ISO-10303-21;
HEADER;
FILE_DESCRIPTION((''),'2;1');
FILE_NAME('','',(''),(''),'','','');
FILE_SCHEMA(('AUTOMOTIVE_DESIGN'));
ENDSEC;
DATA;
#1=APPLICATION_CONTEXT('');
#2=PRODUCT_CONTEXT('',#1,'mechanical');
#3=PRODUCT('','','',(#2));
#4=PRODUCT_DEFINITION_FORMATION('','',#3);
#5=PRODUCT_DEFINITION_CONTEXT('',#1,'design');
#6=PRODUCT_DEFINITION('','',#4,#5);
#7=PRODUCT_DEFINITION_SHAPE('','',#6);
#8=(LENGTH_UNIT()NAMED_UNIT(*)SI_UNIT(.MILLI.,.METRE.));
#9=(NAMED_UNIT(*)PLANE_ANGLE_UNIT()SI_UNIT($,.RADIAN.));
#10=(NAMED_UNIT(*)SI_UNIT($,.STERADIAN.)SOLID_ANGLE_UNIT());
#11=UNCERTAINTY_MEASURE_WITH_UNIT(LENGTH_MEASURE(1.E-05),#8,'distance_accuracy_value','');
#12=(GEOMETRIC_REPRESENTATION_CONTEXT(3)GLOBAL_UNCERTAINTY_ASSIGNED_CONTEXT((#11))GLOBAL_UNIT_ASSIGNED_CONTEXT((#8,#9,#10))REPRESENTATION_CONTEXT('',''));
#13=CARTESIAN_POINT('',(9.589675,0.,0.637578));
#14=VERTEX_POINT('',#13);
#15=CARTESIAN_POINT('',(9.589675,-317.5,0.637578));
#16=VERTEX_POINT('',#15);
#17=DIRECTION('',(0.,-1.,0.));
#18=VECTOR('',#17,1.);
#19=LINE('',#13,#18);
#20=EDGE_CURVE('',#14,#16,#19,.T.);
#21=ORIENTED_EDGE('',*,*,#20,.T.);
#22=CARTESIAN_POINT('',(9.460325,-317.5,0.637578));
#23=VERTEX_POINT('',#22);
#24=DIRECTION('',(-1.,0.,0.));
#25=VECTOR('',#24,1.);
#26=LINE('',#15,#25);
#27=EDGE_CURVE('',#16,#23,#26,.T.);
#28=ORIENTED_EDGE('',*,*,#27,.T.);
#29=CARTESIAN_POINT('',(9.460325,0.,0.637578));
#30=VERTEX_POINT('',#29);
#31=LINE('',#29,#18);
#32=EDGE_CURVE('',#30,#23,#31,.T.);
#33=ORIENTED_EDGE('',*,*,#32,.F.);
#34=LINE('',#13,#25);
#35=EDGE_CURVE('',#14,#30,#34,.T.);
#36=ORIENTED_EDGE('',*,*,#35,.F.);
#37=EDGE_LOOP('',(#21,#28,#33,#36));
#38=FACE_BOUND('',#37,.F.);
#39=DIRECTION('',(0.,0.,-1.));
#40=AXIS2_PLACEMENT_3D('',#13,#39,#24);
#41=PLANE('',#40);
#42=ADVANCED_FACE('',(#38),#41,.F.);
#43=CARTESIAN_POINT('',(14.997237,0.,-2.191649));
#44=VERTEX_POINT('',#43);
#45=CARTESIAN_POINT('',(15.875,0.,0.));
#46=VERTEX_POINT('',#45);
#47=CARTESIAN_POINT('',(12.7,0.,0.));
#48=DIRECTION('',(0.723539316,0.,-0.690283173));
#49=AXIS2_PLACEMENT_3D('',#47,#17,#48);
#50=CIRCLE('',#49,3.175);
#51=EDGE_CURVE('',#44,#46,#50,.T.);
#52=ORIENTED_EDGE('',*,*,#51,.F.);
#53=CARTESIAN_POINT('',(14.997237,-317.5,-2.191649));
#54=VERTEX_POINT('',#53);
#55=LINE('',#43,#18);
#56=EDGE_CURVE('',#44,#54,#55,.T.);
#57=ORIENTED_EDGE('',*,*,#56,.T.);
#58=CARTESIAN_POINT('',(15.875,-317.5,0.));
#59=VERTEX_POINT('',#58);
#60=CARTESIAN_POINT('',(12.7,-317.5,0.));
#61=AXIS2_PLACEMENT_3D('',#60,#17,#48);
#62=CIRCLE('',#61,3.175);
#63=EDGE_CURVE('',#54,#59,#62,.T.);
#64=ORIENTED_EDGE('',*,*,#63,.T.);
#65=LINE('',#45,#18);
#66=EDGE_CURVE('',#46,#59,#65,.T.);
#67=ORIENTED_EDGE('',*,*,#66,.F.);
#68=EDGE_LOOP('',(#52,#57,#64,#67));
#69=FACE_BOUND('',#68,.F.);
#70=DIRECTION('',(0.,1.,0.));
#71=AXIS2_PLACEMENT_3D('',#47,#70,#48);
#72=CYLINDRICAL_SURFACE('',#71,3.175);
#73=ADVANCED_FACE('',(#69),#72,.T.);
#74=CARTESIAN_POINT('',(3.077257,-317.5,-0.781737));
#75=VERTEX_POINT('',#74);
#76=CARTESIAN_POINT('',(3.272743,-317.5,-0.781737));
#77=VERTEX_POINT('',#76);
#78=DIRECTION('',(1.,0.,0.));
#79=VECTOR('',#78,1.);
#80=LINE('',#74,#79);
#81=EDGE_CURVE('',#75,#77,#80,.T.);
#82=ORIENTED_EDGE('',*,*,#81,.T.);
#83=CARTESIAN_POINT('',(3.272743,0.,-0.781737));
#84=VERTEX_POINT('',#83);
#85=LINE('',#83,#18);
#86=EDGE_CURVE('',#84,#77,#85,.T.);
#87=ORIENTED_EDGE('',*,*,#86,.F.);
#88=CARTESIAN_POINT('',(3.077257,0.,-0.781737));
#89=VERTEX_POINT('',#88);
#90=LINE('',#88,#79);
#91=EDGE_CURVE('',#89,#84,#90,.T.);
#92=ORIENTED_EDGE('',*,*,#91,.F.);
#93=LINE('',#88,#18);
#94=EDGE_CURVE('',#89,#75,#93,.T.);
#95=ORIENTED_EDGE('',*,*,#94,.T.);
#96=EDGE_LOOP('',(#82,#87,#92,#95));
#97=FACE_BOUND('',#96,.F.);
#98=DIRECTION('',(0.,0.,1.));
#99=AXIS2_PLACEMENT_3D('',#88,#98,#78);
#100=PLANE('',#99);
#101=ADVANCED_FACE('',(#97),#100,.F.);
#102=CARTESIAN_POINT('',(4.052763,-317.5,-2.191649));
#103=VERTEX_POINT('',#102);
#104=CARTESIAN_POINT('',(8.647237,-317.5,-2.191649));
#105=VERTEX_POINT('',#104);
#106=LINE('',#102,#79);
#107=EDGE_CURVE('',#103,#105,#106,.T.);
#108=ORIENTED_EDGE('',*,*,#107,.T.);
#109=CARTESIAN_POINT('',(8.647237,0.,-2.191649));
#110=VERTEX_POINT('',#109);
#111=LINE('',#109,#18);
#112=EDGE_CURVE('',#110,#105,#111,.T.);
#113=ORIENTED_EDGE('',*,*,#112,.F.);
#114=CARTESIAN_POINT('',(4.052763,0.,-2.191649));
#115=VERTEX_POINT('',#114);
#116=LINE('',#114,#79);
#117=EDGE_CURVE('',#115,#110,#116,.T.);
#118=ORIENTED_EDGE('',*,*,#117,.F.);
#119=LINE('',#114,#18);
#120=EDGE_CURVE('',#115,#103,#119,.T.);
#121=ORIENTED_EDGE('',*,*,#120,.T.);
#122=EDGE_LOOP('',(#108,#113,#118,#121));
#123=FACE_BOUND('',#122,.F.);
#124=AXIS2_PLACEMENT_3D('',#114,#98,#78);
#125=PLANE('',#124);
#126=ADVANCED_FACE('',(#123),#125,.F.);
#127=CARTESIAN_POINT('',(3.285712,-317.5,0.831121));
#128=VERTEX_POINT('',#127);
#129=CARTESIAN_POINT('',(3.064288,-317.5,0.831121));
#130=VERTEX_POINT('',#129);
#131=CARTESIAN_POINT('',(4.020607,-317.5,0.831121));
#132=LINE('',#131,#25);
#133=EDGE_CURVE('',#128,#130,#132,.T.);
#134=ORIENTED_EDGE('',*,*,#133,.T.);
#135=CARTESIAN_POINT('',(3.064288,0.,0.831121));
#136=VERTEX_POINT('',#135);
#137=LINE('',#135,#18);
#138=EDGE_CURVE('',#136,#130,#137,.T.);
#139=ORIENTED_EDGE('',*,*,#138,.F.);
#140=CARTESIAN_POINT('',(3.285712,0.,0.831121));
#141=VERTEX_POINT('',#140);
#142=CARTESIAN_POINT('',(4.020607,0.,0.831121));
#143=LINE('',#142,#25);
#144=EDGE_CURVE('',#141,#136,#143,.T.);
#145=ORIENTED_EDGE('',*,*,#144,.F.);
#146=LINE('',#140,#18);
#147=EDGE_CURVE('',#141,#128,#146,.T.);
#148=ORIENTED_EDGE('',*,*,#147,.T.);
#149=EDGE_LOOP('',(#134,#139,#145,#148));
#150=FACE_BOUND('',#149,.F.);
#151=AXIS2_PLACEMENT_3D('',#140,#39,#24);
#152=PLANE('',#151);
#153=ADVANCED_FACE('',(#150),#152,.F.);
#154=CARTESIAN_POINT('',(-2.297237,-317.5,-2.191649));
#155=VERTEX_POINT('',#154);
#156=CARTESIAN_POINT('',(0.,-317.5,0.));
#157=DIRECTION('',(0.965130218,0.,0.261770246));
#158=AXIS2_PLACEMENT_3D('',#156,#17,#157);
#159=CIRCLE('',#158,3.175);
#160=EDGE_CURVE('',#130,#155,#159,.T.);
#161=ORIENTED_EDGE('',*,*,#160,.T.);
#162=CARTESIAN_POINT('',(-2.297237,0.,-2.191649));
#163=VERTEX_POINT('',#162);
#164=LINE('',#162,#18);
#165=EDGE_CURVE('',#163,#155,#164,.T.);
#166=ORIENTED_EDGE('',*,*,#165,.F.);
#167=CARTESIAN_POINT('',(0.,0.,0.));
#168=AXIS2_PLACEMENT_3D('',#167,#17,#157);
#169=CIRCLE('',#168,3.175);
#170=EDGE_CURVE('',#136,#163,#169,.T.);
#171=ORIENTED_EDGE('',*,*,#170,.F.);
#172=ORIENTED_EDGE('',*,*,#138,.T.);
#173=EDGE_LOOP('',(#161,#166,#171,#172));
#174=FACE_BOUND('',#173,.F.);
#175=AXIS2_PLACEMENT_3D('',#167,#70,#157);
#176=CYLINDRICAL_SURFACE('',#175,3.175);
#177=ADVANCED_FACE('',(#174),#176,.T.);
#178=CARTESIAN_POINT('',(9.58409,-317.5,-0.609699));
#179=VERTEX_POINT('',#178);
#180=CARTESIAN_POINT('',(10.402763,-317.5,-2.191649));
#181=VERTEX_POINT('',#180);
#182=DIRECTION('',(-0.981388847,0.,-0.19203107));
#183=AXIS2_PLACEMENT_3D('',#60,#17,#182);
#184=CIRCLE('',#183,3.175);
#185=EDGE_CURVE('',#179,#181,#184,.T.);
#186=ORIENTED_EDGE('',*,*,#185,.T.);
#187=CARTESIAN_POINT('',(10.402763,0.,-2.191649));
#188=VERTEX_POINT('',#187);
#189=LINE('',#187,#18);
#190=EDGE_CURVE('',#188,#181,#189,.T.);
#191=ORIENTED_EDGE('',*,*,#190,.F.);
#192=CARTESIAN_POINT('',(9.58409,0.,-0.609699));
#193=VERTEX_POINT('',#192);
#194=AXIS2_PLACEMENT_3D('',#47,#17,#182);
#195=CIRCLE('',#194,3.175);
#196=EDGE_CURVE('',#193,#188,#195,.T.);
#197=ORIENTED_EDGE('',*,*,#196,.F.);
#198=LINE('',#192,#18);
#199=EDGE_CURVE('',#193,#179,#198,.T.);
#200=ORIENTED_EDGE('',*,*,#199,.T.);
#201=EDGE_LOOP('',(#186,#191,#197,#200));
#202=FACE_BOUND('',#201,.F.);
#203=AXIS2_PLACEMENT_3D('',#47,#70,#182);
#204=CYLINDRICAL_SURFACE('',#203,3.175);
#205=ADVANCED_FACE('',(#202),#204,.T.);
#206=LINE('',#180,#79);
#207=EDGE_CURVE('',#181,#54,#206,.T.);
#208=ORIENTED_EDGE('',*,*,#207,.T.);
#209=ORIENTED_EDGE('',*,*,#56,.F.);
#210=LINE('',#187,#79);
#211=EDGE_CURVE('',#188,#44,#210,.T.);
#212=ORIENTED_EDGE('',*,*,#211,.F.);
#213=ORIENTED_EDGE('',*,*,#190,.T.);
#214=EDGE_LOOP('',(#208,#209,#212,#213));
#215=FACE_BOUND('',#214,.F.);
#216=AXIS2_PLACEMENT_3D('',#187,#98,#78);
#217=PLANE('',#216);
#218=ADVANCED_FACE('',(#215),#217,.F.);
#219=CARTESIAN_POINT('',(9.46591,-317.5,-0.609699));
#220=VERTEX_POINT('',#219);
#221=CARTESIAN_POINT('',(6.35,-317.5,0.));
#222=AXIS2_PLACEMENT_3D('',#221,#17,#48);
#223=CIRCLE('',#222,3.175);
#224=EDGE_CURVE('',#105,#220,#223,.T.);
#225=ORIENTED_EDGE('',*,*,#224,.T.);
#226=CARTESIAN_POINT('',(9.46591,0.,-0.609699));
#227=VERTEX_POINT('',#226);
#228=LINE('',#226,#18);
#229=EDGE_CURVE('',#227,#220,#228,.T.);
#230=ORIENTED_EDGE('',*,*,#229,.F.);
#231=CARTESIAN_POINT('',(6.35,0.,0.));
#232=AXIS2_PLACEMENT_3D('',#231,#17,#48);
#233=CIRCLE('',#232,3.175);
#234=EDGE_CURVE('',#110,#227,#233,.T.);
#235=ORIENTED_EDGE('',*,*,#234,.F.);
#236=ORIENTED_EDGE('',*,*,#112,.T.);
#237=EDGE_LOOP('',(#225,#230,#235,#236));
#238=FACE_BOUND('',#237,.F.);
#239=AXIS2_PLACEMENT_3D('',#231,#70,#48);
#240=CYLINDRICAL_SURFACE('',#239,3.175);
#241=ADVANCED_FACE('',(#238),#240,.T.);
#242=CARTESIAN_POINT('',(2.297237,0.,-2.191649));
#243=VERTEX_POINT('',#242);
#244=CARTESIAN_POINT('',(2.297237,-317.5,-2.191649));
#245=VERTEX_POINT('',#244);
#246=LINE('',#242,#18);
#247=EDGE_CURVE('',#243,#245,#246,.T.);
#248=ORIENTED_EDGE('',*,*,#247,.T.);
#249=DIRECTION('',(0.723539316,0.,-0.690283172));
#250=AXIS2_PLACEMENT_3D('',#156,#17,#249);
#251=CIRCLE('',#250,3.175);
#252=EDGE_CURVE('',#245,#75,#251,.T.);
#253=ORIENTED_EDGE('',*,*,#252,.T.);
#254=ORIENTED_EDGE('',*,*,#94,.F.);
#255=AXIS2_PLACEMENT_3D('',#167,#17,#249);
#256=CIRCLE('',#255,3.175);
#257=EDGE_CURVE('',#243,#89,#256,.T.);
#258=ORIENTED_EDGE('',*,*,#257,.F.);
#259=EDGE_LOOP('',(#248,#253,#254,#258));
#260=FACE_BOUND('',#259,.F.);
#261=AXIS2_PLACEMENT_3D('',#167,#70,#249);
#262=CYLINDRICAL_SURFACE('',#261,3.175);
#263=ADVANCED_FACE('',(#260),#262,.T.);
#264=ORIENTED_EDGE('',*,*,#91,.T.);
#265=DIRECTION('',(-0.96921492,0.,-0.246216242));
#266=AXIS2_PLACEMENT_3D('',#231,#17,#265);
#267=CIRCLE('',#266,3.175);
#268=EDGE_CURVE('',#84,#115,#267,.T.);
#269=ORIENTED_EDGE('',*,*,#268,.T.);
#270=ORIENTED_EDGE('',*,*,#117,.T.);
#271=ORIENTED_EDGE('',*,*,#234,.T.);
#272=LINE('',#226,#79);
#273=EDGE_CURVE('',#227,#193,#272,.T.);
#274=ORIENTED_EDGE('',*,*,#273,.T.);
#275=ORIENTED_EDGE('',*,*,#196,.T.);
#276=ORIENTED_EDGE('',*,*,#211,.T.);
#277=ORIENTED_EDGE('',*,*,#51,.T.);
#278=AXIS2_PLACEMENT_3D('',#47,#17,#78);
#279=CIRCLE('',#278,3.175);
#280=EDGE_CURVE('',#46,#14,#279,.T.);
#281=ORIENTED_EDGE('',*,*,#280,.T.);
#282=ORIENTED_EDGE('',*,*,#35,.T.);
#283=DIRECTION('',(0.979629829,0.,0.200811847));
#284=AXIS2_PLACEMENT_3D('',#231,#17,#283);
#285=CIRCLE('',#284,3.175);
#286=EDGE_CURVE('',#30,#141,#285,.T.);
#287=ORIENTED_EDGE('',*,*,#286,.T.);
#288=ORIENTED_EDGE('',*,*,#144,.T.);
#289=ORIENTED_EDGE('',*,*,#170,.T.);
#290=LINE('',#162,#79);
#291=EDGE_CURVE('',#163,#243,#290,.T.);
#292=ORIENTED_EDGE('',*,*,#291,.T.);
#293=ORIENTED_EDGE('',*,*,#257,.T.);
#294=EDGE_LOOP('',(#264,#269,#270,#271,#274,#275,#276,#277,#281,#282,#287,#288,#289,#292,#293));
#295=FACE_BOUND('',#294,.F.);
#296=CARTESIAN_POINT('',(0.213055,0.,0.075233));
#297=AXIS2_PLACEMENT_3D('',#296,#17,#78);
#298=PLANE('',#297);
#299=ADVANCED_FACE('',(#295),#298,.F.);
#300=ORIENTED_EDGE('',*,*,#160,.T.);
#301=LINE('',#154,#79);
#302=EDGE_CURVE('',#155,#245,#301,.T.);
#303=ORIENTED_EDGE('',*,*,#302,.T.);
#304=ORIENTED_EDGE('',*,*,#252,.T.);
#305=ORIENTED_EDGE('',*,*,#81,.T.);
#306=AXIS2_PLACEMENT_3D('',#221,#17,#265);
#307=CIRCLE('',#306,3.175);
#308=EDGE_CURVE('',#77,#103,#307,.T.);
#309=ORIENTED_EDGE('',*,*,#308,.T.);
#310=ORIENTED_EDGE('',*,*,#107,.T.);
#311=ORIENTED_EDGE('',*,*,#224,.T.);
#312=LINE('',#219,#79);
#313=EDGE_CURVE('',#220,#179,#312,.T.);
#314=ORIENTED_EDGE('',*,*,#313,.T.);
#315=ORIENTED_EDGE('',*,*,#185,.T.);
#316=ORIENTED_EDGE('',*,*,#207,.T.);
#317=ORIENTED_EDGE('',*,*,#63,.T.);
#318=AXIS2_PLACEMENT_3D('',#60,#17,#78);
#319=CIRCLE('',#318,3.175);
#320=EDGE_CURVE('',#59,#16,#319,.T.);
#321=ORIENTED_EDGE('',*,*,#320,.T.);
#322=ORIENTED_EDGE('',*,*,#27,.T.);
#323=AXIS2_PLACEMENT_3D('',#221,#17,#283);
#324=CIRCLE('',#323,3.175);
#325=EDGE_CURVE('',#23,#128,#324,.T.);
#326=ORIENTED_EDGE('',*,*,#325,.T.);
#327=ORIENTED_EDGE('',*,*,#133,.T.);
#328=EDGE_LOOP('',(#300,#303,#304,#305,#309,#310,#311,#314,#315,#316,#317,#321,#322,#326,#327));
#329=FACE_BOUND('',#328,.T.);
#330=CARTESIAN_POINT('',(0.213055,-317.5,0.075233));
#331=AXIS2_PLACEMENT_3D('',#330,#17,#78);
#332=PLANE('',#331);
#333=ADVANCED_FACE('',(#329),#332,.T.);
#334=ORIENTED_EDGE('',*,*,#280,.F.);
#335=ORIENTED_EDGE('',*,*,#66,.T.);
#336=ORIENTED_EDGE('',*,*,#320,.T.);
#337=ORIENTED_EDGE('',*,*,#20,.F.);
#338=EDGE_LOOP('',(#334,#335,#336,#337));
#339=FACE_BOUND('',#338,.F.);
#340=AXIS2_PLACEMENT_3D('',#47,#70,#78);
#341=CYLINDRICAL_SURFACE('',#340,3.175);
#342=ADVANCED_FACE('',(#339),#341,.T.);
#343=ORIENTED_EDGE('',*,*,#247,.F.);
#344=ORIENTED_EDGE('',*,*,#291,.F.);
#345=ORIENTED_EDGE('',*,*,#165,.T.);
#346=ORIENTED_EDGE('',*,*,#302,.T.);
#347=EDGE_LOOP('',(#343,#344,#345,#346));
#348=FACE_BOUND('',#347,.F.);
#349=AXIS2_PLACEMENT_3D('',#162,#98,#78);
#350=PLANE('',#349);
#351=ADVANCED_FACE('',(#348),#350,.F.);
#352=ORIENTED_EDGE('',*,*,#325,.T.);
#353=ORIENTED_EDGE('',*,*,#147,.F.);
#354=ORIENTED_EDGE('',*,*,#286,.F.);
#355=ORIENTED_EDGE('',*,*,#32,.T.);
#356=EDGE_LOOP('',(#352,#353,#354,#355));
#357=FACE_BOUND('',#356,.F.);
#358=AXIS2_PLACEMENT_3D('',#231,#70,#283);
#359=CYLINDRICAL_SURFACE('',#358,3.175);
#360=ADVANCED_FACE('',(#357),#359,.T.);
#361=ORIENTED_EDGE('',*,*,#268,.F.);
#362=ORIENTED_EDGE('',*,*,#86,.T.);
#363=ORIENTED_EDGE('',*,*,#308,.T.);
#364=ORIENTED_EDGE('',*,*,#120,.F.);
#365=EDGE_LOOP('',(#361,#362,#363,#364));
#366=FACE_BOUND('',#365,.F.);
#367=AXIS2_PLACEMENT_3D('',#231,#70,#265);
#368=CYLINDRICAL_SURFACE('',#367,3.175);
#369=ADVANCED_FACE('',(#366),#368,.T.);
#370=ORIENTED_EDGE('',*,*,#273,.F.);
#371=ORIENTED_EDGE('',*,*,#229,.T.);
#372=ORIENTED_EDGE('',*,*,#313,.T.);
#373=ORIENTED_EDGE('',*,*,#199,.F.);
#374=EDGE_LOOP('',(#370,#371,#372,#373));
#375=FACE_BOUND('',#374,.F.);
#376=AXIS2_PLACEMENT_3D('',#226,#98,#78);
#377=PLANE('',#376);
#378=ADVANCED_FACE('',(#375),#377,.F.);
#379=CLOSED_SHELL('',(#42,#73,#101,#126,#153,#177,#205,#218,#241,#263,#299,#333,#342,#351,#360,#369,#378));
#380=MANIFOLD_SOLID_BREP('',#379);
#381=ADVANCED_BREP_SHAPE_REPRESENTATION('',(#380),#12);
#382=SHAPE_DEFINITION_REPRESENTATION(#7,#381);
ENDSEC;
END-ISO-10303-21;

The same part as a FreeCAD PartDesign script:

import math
import FreeCAD as App
import Part
import Sketcher

V = App.Vector
Q = App.Units.Quantity

doc = App.newDocument("Part")
params = doc.addObject("Spreadsheet::Sheet", "Params")
for row, (alias, value) in enumerate([
    ("sketch1_radius", "0.125 in"),
    ("pad1_length", "12.5 in"),
], start=1):
    params.set(f"A{row}", alias)
    params.set(f"B{row}", "=" + value)
    params.setAlias(f"B{row}", alias)

body = doc.addObject("PartDesign::Body", "Body")

# Sketch on XZ plane
sketch1 = doc.addObject("Sketcher::SketchObject", "Sketch")
body.addObject(sketch1)
sketch1.AttachmentSupport = (doc.XZ_Plane, [""])
sketch1.MapMode = "FlatFace"
sketch1.addGeometry(Part.ArcOfCircle(Part.Circle(V(0, 0, 0), V(0, 0, 1), 3.17), math.radians(15), math.radians(224)), False)
sketch1.addGeometry(Part.LineSegment(V(-2.3, -2.19, 0), V(2.3, -2.19, 0)), False)
sketch1.addGeometry(Part.ArcOfCircle(Part.Circle(V(0, 0, 0), V(0, 0, 1), 3.18), math.radians(-44), math.radians(-14)), False)
sketch1.addGeometry(Part.LineSegment(V(3.08, -0.78, 0), V(3.27, -0.78, 0)), False)
sketch1.addGeometry(Part.ArcOfCircle(Part.Circle(V(6.35, 0, 0), V(0, 0, 1), 3.18), math.radians(-166), math.radians(-136)), False)
sketch1.addGeometry(Part.LineSegment(V(4.05, -2.19, 0), V(8.65, -2.19, 0)), False)
sketch1.addGeometry(Part.ArcOfCircle(Part.Circle(V(6.35, 0, 0), V(0, 0, 1), 3.17), math.radians(-44), math.radians(-11)), False)
sketch1.addGeometry(Part.LineSegment(V(9.47, -0.61, 0), V(9.58, -0.61, 0)), False)
sketch1.addGeometry(Part.ArcOfCircle(Part.Circle(V(12.7, 0, 0), V(0, 0, 1), 3.17), math.radians(-169), math.radians(-136)), False)
sketch1.addGeometry(Part.LineSegment(V(10.4, -2.19, 0), V(15, -2.19, 0)), False)
sketch1.addGeometry(Part.ArcOfCircle(Part.Circle(V(12.7, 0, 0), V(0, 0, 1), 3.17), math.radians(-44), math.radians(0)), False)
sketch1.addGeometry(Part.ArcOfCircle(Part.Circle(V(12.7, 0, 0), V(0, 0, 1), 3.17), math.radians(0), math.radians(168)), False)
sketch1.addGeometry(Part.LineSegment(V(9.59, 0.64, 0), V(9.46, 0.64, 0)), False)
sketch1.addGeometry(Part.ArcOfCircle(Part.Circle(V(6.35, 0, 0), V(0, 0, 1), 3.17), math.radians(12), math.radians(165)), False)
sketch1.addGeometry(Part.LineSegment(V(3.29, 0.83, 0), V(3.06, 0.83, 0)), False)
sketch1.addConstraint(Sketcher.Constraint("Coincident", 0, 2, 1, 1))
sketch1.addConstraint(Sketcher.Constraint("Coincident", 1, 2, 2, 1))
sketch1.addConstraint(Sketcher.Constraint("Coincident", 2, 2, 3, 1))
sketch1.addConstraint(Sketcher.Constraint("Coincident", 3, 2, 4, 1))
sketch1.addConstraint(Sketcher.Constraint("Coincident", 4, 2, 5, 1))
sketch1.addConstraint(Sketcher.Constraint("Coincident", 5, 2, 6, 1))
sketch1.addConstraint(Sketcher.Constraint("Coincident", 6, 2, 7, 1))
sketch1.addConstraint(Sketcher.Constraint("Coincident", 7, 2, 8, 1))
sketch1.addConstraint(Sketcher.Constraint("Coincident", 8, 2, 9, 1))
sketch1.addConstraint(Sketcher.Constraint("Coincident", 9, 2, 10, 1))
sketch1.addConstraint(Sketcher.Constraint("Tangent", 10, 2, 11, 1))
sketch1.addConstraint(Sketcher.Constraint("Coincident", 11, 2, 12, 1))
sketch1.addConstraint(Sketcher.Constraint("Coincident", 12, 2, 13, 1))
sketch1.addConstraint(Sketcher.Constraint("Coincident", 13, 2, 14, 1))
sketch1.addConstraint(Sketcher.Constraint("Coincident", 14, 2, 0, 1))
sketch1.addConstraint(Sketcher.Constraint("Horizontal", 1))
sketch1.addConstraint(Sketcher.Constraint("Horizontal", 3))
sketch1.addConstraint(Sketcher.Constraint("Horizontal", 5))
sketch1.addConstraint(Sketcher.Constraint("Horizontal", 7))
sketch1.addConstraint(Sketcher.Constraint("Horizontal", 9))
sketch1.addConstraint(Sketcher.Constraint("Horizontal", 12))
sketch1.addConstraint(Sketcher.Constraint("Horizontal", 14))
sketch1.addConstraint(Sketcher.Constraint("Coincident", 0, 3, -1, 1))
sketch1.addConstraint(Sketcher.Constraint("Coincident", 2, 3, -1, 1))
sketch1.addConstraint(Sketcher.Constraint("Coincident", 6, 3, 4, 3))
sketch1.addConstraint(Sketcher.Constraint("Coincident", 10, 3, 8, 3))
sketch1.addConstraint(Sketcher.Constraint("Coincident", 13, 3, 4, 3))
sketch1.addConstraint(Sketcher.Constraint("Equal", 0, 2))
sketch1.addConstraint(Sketcher.Constraint("Equal", 2, 4))
sketch1.addConstraint(Sketcher.Constraint("Equal", 4, 6))
sketch1.addConstraint(Sketcher.Constraint("Equal", 6, 8))
sketch1.addConstraint(Sketcher.Constraint("Equal", 8, 10))
sketch1.addConstraint(Sketcher.Constraint("Equal", 10, 11))
sketch1.addConstraint(Sketcher.Constraint("Equal", 11, 13))
sketch1.addConstraint(Sketcher.Constraint("PointOnObject", 4, 3, -1))
sketch1.addConstraint(Sketcher.Constraint("PointOnObject", 8, 3, -1))
sketch1.addConstraint(Sketcher.Constraint("PointOnObject", 10, 2, -1))
sketch1.addConstraint(Sketcher.Constraint("Horizontal", 1, 2, 4, 2))
sketch1.addConstraint(Sketcher.Constraint("Horizontal", 5, 2, 8, 2))
sketch1.addConstraint(Sketcher.Constraint("Radius", 0, Q("0.125 in")))
sketch1.addConstraint(Sketcher.Constraint("DistanceX", -1, 1, 8, 3, Q("0.5 in")))
sketch1.addConstraint(Sketcher.Constraint("DistanceX", -1, 1, 4, 3, Q("0.25 in")))
sketch1.addConstraint(Sketcher.Constraint("DistanceX", 7, 1, 7, 2, 0.118181))
sketch1.addConstraint(Sketcher.Constraint("DistanceX", 12, 2, 12, 1, 0.129351))
sketch1.addConstraint(Sketcher.Constraint("DistanceX", 1, 1, 1, 2, 4.594475))
sketch1.addConstraint(Sketcher.Constraint("DistanceX", 3, 1, 3, 2, 0.195485))
sketch1.addConstraint(Sketcher.Constraint("DistanceX", 14, 2, 14, 1, 0.221423))
sketch1.setExpression("Constraints[39]", "Params.sketch1_radius")
pad1 = doc.addObject("PartDesign::Pad", "Pad")
body.addObject(pad1)
pad1.Profile = sketch1
pad1.setExpression("Length", "Params.pad1_length")

doc.recompute()
